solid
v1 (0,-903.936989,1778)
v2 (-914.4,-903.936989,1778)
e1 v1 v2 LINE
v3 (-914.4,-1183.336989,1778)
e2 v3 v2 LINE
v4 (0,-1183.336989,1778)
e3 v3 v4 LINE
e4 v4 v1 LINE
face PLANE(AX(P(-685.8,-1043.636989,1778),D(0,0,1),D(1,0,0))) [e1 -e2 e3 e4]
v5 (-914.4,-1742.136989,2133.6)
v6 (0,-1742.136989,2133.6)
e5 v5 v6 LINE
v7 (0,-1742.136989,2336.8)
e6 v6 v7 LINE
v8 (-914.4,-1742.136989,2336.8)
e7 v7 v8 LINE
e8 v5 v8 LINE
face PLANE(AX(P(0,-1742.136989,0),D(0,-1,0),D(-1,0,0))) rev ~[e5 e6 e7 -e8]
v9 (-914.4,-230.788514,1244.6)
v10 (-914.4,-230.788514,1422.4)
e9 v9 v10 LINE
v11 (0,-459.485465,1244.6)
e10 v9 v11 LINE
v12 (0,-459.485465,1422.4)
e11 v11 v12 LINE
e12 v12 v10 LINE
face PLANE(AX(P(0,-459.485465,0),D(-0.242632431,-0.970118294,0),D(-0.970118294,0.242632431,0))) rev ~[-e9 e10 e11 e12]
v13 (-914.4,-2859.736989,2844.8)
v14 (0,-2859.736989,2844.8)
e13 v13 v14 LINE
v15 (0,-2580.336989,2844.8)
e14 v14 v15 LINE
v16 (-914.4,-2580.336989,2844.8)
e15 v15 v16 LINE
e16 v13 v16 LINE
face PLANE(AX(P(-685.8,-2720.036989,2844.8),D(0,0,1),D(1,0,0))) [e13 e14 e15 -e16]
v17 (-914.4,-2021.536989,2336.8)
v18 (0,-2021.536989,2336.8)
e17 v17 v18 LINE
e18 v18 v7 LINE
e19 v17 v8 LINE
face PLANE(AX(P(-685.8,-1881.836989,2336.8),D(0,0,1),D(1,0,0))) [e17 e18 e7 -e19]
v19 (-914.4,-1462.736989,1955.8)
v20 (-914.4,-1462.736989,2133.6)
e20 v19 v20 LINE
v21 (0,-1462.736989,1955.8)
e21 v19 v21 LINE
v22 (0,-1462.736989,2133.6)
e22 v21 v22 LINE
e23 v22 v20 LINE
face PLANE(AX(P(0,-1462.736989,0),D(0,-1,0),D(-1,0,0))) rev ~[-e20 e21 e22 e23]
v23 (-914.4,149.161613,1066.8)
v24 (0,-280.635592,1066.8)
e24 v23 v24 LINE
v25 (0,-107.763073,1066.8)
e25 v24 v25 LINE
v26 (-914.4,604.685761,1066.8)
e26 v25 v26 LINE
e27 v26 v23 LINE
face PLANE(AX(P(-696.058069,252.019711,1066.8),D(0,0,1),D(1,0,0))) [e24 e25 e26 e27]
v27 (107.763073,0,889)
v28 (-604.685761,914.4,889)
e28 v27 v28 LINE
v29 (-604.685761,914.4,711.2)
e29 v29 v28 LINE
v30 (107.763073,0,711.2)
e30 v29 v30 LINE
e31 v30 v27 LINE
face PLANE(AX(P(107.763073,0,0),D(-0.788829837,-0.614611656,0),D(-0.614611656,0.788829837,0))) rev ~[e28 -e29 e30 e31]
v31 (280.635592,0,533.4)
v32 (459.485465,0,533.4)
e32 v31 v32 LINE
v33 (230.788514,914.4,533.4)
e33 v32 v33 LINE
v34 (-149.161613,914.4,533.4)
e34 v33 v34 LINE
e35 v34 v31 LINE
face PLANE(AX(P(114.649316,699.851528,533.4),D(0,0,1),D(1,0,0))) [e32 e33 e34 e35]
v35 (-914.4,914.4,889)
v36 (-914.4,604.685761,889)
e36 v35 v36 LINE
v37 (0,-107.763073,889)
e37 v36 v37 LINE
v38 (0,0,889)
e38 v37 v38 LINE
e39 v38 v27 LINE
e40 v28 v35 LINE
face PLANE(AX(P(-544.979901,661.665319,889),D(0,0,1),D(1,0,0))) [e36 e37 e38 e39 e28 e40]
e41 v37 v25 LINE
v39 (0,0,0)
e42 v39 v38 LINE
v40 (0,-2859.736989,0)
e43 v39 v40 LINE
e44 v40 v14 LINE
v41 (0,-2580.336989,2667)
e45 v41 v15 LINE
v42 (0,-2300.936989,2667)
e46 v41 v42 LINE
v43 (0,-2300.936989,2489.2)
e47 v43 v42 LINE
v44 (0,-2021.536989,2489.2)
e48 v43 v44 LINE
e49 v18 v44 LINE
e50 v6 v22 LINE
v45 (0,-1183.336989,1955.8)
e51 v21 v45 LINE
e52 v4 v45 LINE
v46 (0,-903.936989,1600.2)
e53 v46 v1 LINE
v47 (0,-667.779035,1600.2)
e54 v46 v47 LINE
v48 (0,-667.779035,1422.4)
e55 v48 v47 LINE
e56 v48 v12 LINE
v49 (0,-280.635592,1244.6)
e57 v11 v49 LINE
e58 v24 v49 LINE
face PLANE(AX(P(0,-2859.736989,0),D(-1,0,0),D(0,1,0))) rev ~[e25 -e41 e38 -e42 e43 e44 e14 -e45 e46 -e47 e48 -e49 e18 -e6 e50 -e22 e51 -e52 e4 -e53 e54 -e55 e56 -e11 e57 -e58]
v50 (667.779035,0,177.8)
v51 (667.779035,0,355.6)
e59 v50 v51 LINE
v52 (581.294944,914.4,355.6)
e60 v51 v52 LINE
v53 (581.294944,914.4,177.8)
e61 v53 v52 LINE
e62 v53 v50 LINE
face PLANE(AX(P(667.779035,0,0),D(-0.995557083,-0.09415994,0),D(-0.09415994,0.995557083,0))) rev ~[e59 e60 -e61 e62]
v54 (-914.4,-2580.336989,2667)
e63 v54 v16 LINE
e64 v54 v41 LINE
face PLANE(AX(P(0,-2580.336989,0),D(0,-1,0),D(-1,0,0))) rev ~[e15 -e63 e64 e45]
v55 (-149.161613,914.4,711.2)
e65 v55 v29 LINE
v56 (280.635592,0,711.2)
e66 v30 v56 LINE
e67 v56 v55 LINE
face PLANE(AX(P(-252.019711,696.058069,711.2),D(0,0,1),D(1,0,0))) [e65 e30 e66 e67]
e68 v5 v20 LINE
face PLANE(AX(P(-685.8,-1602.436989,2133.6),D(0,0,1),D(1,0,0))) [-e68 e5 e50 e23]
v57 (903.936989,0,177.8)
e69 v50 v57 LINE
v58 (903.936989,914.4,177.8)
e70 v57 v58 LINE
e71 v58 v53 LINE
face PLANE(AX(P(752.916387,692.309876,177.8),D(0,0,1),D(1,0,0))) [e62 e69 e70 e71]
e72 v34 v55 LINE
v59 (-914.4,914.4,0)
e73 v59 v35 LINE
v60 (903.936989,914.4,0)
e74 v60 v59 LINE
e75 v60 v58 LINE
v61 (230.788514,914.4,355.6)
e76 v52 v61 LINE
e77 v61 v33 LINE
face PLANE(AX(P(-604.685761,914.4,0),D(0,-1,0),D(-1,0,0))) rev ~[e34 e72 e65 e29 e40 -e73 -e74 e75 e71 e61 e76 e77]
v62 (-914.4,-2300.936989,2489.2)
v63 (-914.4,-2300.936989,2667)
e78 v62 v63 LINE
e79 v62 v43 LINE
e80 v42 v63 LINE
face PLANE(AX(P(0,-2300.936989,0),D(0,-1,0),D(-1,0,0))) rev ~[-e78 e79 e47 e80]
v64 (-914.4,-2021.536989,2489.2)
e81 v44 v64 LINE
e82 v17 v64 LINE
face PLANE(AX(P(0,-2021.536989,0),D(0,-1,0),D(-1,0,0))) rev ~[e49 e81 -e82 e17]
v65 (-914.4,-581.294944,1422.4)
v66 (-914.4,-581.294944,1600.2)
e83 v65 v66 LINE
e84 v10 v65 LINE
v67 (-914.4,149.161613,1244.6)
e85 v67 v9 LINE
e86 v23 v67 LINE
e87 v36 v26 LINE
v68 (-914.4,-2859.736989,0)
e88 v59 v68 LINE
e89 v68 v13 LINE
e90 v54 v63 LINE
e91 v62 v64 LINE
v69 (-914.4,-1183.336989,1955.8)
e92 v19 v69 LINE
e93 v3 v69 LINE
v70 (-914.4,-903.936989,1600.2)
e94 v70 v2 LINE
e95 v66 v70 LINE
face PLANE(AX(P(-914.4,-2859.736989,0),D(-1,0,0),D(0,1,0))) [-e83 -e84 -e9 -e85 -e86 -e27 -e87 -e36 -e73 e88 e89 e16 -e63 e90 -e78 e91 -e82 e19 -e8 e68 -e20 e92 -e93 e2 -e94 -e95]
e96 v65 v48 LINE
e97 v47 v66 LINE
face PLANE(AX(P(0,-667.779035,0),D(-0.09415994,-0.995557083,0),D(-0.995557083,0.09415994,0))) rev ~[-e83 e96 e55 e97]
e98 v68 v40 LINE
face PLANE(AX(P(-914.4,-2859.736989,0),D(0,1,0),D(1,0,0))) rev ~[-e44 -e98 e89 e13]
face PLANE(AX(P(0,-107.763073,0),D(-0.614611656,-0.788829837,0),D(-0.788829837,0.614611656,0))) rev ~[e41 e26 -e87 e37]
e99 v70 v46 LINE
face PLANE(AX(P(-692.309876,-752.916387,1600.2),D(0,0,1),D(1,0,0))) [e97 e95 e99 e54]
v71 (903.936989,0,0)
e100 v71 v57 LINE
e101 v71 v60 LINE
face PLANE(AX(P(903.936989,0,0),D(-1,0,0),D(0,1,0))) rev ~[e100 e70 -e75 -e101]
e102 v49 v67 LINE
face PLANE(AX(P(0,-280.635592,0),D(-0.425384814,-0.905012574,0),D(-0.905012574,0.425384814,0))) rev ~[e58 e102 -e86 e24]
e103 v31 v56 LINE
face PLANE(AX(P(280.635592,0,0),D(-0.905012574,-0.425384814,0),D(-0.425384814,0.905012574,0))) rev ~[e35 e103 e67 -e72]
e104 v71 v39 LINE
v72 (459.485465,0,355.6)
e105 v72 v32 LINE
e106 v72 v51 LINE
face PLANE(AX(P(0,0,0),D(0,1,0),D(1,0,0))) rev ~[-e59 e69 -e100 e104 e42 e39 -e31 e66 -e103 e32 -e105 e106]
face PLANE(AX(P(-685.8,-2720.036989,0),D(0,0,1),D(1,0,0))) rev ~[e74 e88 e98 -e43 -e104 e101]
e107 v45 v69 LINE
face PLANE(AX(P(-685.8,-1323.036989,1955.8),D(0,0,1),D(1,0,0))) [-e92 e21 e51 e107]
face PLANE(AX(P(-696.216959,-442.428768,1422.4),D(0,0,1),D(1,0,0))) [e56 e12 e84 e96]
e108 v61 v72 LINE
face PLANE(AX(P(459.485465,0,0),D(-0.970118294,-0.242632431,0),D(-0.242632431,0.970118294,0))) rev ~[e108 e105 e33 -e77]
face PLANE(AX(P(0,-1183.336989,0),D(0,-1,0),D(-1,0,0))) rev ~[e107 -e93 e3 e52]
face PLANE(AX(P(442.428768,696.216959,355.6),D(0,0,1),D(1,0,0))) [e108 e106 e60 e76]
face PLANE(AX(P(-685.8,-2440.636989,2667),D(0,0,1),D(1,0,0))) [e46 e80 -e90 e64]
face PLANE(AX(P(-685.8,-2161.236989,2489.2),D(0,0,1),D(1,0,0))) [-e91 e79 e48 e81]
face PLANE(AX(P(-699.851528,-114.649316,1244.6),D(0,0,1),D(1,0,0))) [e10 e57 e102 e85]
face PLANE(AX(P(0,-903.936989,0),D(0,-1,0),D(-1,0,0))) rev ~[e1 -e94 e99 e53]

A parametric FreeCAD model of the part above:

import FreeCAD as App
import Part
import Sketcher

V = App.Vector
Q = App.Units.Quantity


def add_polygon(sketch, points):
    """Adds a closed chain of lines whose ends are joined by coincident constraints."""
    first, n = sketch.GeometryCount, len(points)
    for a, b in zip(points, points[1:] + points[:1]):
        sketch.addGeometry(Part.LineSegment(App.Vector(*a, 0), App.Vector(*b, 0)), False)
    for i in range(n):
        sketch.addConstraint(Sketcher.Constraint("Coincident", first + i, 2, first + (i + 1) % n, 1))

doc = App.newDocument("Part")
body = doc.addObject("PartDesign::Body", "Body")

# Sketch on XY plane
sketch1 = doc.addObject("Sketcher::SketchObject", "Sketch")
body.addObject(sketch1)
sketch1.AttachmentSupport = (doc.XY_Plane, [""])
sketch1.MapMode = "FlatFace"
add_polygon(sketch1, [(581, 914), (668, 0), (904, 0), (904, 914)])  # lines 0-3
sketch1.addConstraint([
    Sketcher.Constraint("Horizontal", 1),
    Sketcher.Constraint("Vertical", 2),
    Sketcher.Constraint("Horizontal", 3),
    Sketcher.Constraint("PointOnObject", 0, 2, -1),
    Sketcher.Constraint("DistanceY", 2, 1, 2, 2, Q("36 in")),
    Sketcher.Constraint("DistanceX", 1, 1, 1, 2, 236.157955),
    Sketcher.Constraint("DistanceX", 3, 2, 3, 1, 322.642045),
    Sketcher.Constraint("DistanceX", -1, 1, 1, 2, 903.936989),
])
pad1 = doc.addObject("PartDesign::Pad", "Pad")
body.addObject(pad1)
pad1.Profile = sketch1
pad1.Length = Q("7 in")

# Sketch on XY plane
sketch2 = doc.addObject("Sketcher::SketchObject", "Sketch001")
body.addObject(sketch2)
sketch2.AttachmentSupport = (doc.XY_Plane, [""])
sketch2.MapMode = "FlatFace"
add_polygon(sketch2, [(231, 914), (459, 0), (668, 0), (581, 914)])  # lines 0-3
sketch2.addConstraint([
    Sketcher.Constraint("Horizontal", 1),
    Sketcher.Constraint("Horizontal", 3),
    Sketcher.Constraint("PointOnObject", 0, 2, -1),
    Sketcher.Constraint("DistanceY", -1, 1, 2, 2, Q("36 in")),
    Sketcher.Constraint("DistanceX", 1, 1, 1, 2, 208.29357),
    Sketcher.Constraint("DistanceX", 3, 2, 3, 1, 350.50643),
    Sketcher.Constraint("DistanceX", 2, 2, 1, 2, 86.48409),
    Sketcher.Constraint("DistanceX", -1, 1, 0, 2, 459.485465),
])
pad2 = doc.addObject("PartDesign::Pad", "Pad001")
body.addObject(pad2)
pad2.Profile = sketch2
pad2.Length = Q("14 in")

# Sketch on XY plane
sketch3 = doc.addObject("Sketcher::SketchObject", "Sketch002")
body.addObject(sketch3)
sketch3.AttachmentSupport = (doc.XY_Plane, [""])
sketch3.MapMode = "FlatFace"
add_polygon(sketch3, [(-149, 914), (281, 0), (459, 0), (231, 914)])  # lines 0-3
sketch3.addConstraint([
    Sketcher.Constraint("Horizontal", 1),
    Sketcher.Constraint("Horizontal", 3),
    Sketcher.Constraint("PointOnObject", 0, 2, -1),
    Sketcher.Constraint("DistanceY", -1, 1, 2, 2, Q("36 in")),
    Sketcher.Constraint("Distance", 0, 1010.372702),
    Sketcher.Constraint("DistanceX", 1, 1, 1, 2, 178.849873),
    Sketcher.Constraint("DistanceX", 3, 2, 3, 1, 379.950127),
    Sketcher.Constraint("DistanceX", -1, 1, 0, 2, 280.635592),
])
pad3 = doc.addObject("PartDesign::Pad", "Pad002")
body.addObject(pad3)
pad3.Profile = sketch3
pad3.Length = Q("21 in")

# Sketch on XY plane
sketch4 = doc.addObject("Sketcher::SketchObject", "Sketch003")
body.addObject(sketch4)
sketch4.AttachmentSupport = (doc.XY_Plane, [""])
sketch4.MapMode = "FlatFace"
add_polygon(sketch4, [(-149, 914), (-605, 914), (108, 0), (281, 0)])  # lines 0-3
sketch4.addConstraint([
    Sketcher.Constraint("Horizontal", 0),
    Sketcher.Constraint("Horizontal", 2),
    Sketcher.Constraint("PointOnObject", 1, 2, -1),
    Sketcher.Constraint("DistanceY", -1, 1, 0, 2, Q("36 in")),
    Sketcher.Constraint("Distance", 3, 1010.372702),
    Sketcher.Constraint("DistanceX", 0, 2, 0, 1, 455.524149),
    Sketcher.Constraint("DistanceX", 2, 1, 2, 2, 172.872518),
    Sketcher.Constraint("DistanceX", 0, 2, -1, 1, 604.685761),
])
pad4 = doc.addObject("PartDesign::Pad", "Pad003")
body.addObject(pad4)
pad4.Profile = sketch4
pad4.Length = Q("28 in")

# Sketch on XY plane
sketch5 = doc.addObject("Sketcher::SketchObject", "Sketch004")
body.addObject(sketch5)
sketch5.AttachmentSupport = (doc.XY_Plane, [""])
sketch5.MapMode = "FlatFace"
add_polygon(sketch5, [(-605, 914), (-914, 914), (-914, 605), (0, -108), (0, 0), (108, 0)])  # lines 0-5
sketch5.addConstraint([
    Sketcher.Constraint("Horizontal", 0),
    Sketcher.Constraint("Vertical", 1),
    Sketcher.Constraint("Vertical", 3),
    Sketcher.Constraint("Horizontal", 4),
    Sketcher.Constraint("Coincident", 3, 2, -1, 1),
    Sketcher.Constraint("Equal", 0, 1),
    Sketcher.Constraint("Equal", 4, 3),
    Sketcher.Constraint("Equal", 2, 5),
    Sketcher.Constraint("DistanceX", 0, 2, -1, 1, Q("36 in")),
    Sketcher.Constraint("DistanceX", 0, 2, 0, 1, 309.714239),
    Sketcher.Constraint("Distance", 2, 1159.185361),
])
pad5 = doc.addObject("PartDesign::Pad", "Pad004")
body.addObject(pad5)
pad5.Profile = sketch5
pad5.Length = Q("35 in")

# Sketch on XY plane
sketch6 = doc.addObject("Sketcher::SketchObject", "Sketch005")
body.addObject(sketch6)
sketch6.AttachmentSupport = (doc.XY_Plane, [""])
sketch6.MapMode = "FlatFace"
add_polygon(sketch6, [(-914, 605), (-914, 149), (0, -281), (0, -108)])  # lines 0-3
sketch6.addConstraint([
    Sketcher.Constraint("Vertical", 0),
    Sketcher.Constraint("Vertical", 2),
    Sketcher.Constraint("PointOnObject", 1, 2, -2),
    Sketcher.Constraint("DistanceX", 0, 2, -1, 1, Q("36 in")),
    Sketcher.Constraint("Distance", 1, 1010.372702),
    Sketcher.Constraint("DistanceY", 0, 2, 0, 1, 455.524149),
    Sketcher.Constraint("DistanceY", 2, 1, 2, 2, 172.872518),
    Sketcher.Constraint("DistanceY", 1, 2, -1, 1, 280.635592),
])
pad6 = doc.addObject("PartDesign::Pad", "Pad005")
body.addObject(pad6)
pad6.Profile = sketch6
pad6.Length = Q("42 in")

# Sketch on XY plane
sketch7 = doc.addObject("Sketcher::SketchObject", "Sketch006")
body.addObject(sketch7)
sketch7.AttachmentSupport = (doc.XY_Plane, [""])
sketch7.MapMode = "FlatFace"
add_polygon(sketch7, [(-914, 149), (-914, -231), (0, -459), (0, -281)])  # lines 0-3
sketch7.addConstraint([
    Sketcher.Constraint("Vertical", 0),
    Sketcher.Constraint("Vertical", 2),
    Sketcher.Constraint("PointOnObject", 1, 2, -2),
    Sketcher.Constraint("DistanceX", 0, 2, -1, 1, Q("36 in")),
    Sketcher.Constraint("Distance", 3, 1010.372702),
    Sketcher.Constraint("DistanceY", 0, 2, 0, 1, 379.950127),
    Sketcher.Constraint("DistanceY", 2, 1, 2, 2, 178.849873),
    Sketcher.Constraint("DistanceY", 2, 2, -1, 1, 280.635592),
])
pad7 = doc.addObject("PartDesign::Pad", "Pad006")
body.addObject(pad7)
pad7.Profile = sketch7
pad7.Length = Q("49 in")

# Sketch on XY plane
sketch8 = doc.addObject("Sketcher::SketchObject", "Sketch007")
body.addObject(sketch8)
sketch8.AttachmentSupport = (doc.XY_Plane, [""])
sketch8.MapMode = "FlatFace"
add_polygon(sketch8, [(-914, -231), (-914, -581), (0, -668), (0, -459)])  # lines 0-3
sketch8.addConstraint([
    Sketcher.Constraint("Vertical", 0),
    Sketcher.Constraint("Vertical", 2),
    Sketcher.Constraint("PointOnObject", 1, 2, -2),
    Sketcher.Constraint("DistanceX", 0, 2, -1, 1, Q("36 in")),
    Sketcher.Constraint("DistanceY", 0, 2, 0, 1, 350.50643),
    Sketcher.Constraint("DistanceY", 2, 1, 2, 2, 208.29357),
    Sketcher.Constraint("DistanceY", 1, 2, 0, 2, 86.48409),
    Sketcher.Constraint("DistanceY", 0, 2, -1, 1, 581.294944),
])
pad8 = doc.addObject("PartDesign::Pad", "Pad007")
body.addObject(pad8)
pad8.Profile = sketch8
pad8.Length = Q("56 in")

# Sketch on XY plane
sketch9 = doc.addObject("Sketcher::SketchObject", "Sketch008")
body.addObject(sketch9)
sketch9.AttachmentSupport = (doc.XY_Plane, [""])
sketch9.MapMode = "FlatFace"
add_polygon(sketch9, [(-914, -581), (-914, -904), (0, -904), (0, -668)])  # lines 0-3
sketch9.addConstraint([
    Sketcher.Constraint("Vertical", 0),
    Sketcher.Constraint("Horizontal", 1),
    Sketcher.Constraint("Vertical", 2),
    Sketcher.Constraint("PointOnObject", 1, 2, -2),
    Sketcher.Constraint("DistanceX", 1, 1, 1, 2, Q("36 in")),
    Sketcher.Constraint("DistanceY", 0, 2, 0, 1, 322.642045),
    Sketcher.Constraint("DistanceY", 2, 1, 2, 2, 236.157955),
    Sketcher.Constraint("DistanceY", 0, 2, -1, 1, 903.936989),
])
pad9 = doc.addObject("PartDesign::Pad", "Pad008")
body.addObject(pad9)
pad9.Profile = sketch9
pad9.Length = Q("63 in")

# Sketch on XY plane
sketch10 = doc.addObject("Sketcher::SketchObject", "Sketch009")
body.addObject(sketch10)
sketch10.AttachmentSupport = (doc.XY_Plane, [""])
sketch10.MapMode = "FlatFace"
add_polygon(sketch10, [(-914, -904), (-914, -1183), (0, -1183), (0, -904)])  # lines 0-3
sketch10.addConstraint([
    Sketcher.Constraint("Vertical", 0),
    Sketcher.Constraint("Horizontal", 1),
    Sketcher.Constraint("Vertical", 2),
    Sketcher.Constraint("Horizontal", 3),
    Sketcher.Constraint("PointOnObject", 1, 2, -2),
    Sketcher.Constraint("DistanceX", 1, 1, 1, 2, Q("36 in")),
    Sketcher.Constraint("DistanceY", 0, 2, 0, 1, Q("11 in")),
    Sketcher.Constraint("DistanceY", 0, 2, -1, 1, 1183.336989),
])
pad10 = doc.addObject("PartDesign::Pad", "Pad009")
body.addObject(pad10)
pad10.Profile = sketch10
pad10.Length = Q("70 in")

# Sketch on XY plane
sketch11 = doc.addObject("Sketcher::SketchObject", "Sketch010")
body.addObject(sketch11)
sketch11.AttachmentSupport = (doc.XY_Plane, [""])
sketch11.MapMode = "FlatFace"
add_polygon(sketch11, [(-914, -1183), (-914, -1463), (0, -1463), (0, -1183)])  # lines 0-3
sketch11.addConstraint([
    Sketcher.Constraint("Vertical", 0),
    Sketcher.Constraint("Horizontal", 1),
    Sketcher.Constraint("Vertical", 2),
    Sketcher.Constraint("Horizontal", 3),
    Sketcher.Constraint("PointOnObject", 1, 2, -2),
    Sketcher.Constraint("DistanceX", 1, 1, 1, 2, Q("36 in")),
    Sketcher.Constraint("DistanceY", 0, 2, 0, 1, Q("11 in")),
    Sketcher.Constraint("DistanceY", 0, 2, -1, 1, 1462.736989),
])
pad11 = doc.addObject("PartDesign::Pad", "Pad010")
body.addObject(pad11)
pad11.Profile = sketch11
pad11.Length = Q("77 in")

# Sketch on XY plane
sketch12 = doc.addObject("Sketcher::SketchObject", "Sketch011")
body.addObject(sketch12)
sketch12.AttachmentSupport = (doc.XY_Plane, [""])
sketch12.MapMode = "FlatFace"
add_polygon(sketch12, [(-914, -1463), (-914, -1742), (0, -1742), (0, -1463)])  # lines 0-3
sketch12.addConstraint([
    Sketcher.Constraint("Vertical", 0),
    Sketcher.Constraint("Horizontal", 1),
    Sketcher.Constraint("Vertical", 2),
    Sketcher.Constraint("Horizontal", 3),
    Sketcher.Constraint("PointOnObject", 1, 2, -2),
    Sketcher.Constraint("DistanceX", 1, 1, 1, 2, Q("36 in")),
    Sketcher.Constraint("DistanceY", 0, 2, 0, 1, Q("11 in")),
    Sketcher.Constraint("DistanceY", 0, 2, -1, 1, 1742.136989),
])
pad12 = doc.addObject("PartDesign::Pad", "Pad011")
body.addObject(pad12)
pad12.Profile = sketch12
pad12.Length = Q("84 in")

# Sketch on XY plane
sketch13 = doc.addObject("Sketcher::SketchObject", "Sketch012")
body.addObject(sketch13)
sketch13.AttachmentSupport = (doc.XY_Plane, [""])
sketch13.MapMode = "FlatFace"
add_polygon(sketch13, [(-914, -1742), (-914, -2022), (0, -2022), (0, -1742)])  # lines 0-3
sketch13.addConstraint([
    Sketcher.Constraint("Vertical", 0),
    Sketcher.Constraint("Horizontal", 1),
    Sketcher.Constraint("Vertical", 2),
    Sketcher.Constraint("Horizontal", 3),
    Sketcher.Constraint("PointOnObject", 1, 2, -2),
    Sketcher.Constraint("DistanceX", 1, 1, 1, 2, Q("36 in")),
    Sketcher.Constraint("DistanceY", 0, 2, 0, 1, Q("11 in")),
    Sketcher.Constraint("DistanceY", 0, 2, -1, 1, 2021.536989),
])
pad13 = doc.addObject("PartDesign::Pad", "Pad012")
body.addObject(pad13)
pad13.Profile = sketch13
pad13.Length = Q("92 in")

# Sketch on XY plane
sketch14 = doc.addObject("Sketcher::SketchObject", "Sketch013")
body.addObject(sketch14)
sketch14.AttachmentSupport = (doc.XY_Plane, [""])
sketch14.MapMode = "FlatFace"
add_polygon(sketch14, [(-914, -2022), (-914, -2301), (0, -2301), (0, -2022)])  # lines 0-3
sketch14.addConstraint([
    Sketcher.Constraint("Vertical", 0),
    Sketcher.Constraint("Horizontal", 1),
    Sketcher.Constraint("Vertical", 2),
    Sketcher.Constraint("Horizontal", 3),
    Sketcher.Constraint("PointOnObject", 1, 2, -2),
    Sketcher.Constraint("DistanceX", 1, 1, 1, 2, Q("36 in")),
    Sketcher.Constraint("DistanceY", 0, 2, 0, 1, Q("11 in")),
    Sketcher.Constraint("DistanceY", 0, 2, -1, 1, 2300.936989),
])
pad14 = doc.addObject("PartDesign::Pad", "Pad013")
body.addObject(pad14)
pad14.Profile = sketch14
pad14.Length = Q("98 in")

# Sketch on XY plane
sketch15 = doc.addObject("Sketcher::SketchObject", "Sketch014")
body.addObject(sketch15)
sketch15.AttachmentSupport = (doc.XY_Plane, [""])
sketch15.MapMode = "FlatFace"
add_polygon(sketch15, [(-914, -2301), (-914, -2580), (0, -2580), (0, -2301)])  # lines 0-3
sketch15.addConstraint([
    Sketcher.Constraint("Vertical", 0),
    Sketcher.Constraint("Horizontal", 1),
    Sketcher.Constraint("Vertical", 2),
    Sketcher.Constraint("Horizontal", 3),
    Sketcher.Constraint("PointOnObject", 1, 2, -2),
    Sketcher.Constraint("DistanceX", 1, 1, 1, 2, Q("36 in")),
    Sketcher.Constraint("DistanceY", 0, 2, 0, 1, Q("11 in")),
    Sketcher.Constraint("DistanceY", 0, 2, -1, 1, 2580.336989),
])
pad15 = doc.addObject("PartDesign::Pad", "Pad014")
body.addObject(pad15)
pad15.Profile = sketch15
pad15.Length = Q("105 in")

# Sketch on XY plane
sketch16 = doc.addObject("Sketcher::SketchObject", "Sketch015")
body.addObject(sketch16)
sketch16.AttachmentSupport = (doc.XY_Plane, [""])
sketch16.MapMode = "FlatFace"
add_polygon(sketch16, [(-914, -2580), (-914, -2860), (0, -2860), (0, -2580)])  # lines 0-3
sketch16.addConstraint([
    Sketcher.Constraint("Vertical", 0),
    Sketcher.Constraint("Horizontal", 1),
    Sketcher.Constraint("Vertical", 2),
    Sketcher.Constraint("Horizontal", 3),
    Sketcher.Constraint("PointOnObject", 1, 2, -2),
    Sketcher.Constraint("DistanceX", 1, 1, 1, 2, Q("36 in")),
    Sketcher.Constraint("DistanceY", 0, 2, 0, 1, Q("11 in")),
    Sketcher.Constraint("DistanceY", 0, 2, -1, 1, 2859.736989),
])
pad16 = doc.addObject("PartDesign::Pad", "Pad015")
body.addObject(pad16)
pad16.Profile = sketch16
pad16.Length = Q("112 in")

doc.recompute()
